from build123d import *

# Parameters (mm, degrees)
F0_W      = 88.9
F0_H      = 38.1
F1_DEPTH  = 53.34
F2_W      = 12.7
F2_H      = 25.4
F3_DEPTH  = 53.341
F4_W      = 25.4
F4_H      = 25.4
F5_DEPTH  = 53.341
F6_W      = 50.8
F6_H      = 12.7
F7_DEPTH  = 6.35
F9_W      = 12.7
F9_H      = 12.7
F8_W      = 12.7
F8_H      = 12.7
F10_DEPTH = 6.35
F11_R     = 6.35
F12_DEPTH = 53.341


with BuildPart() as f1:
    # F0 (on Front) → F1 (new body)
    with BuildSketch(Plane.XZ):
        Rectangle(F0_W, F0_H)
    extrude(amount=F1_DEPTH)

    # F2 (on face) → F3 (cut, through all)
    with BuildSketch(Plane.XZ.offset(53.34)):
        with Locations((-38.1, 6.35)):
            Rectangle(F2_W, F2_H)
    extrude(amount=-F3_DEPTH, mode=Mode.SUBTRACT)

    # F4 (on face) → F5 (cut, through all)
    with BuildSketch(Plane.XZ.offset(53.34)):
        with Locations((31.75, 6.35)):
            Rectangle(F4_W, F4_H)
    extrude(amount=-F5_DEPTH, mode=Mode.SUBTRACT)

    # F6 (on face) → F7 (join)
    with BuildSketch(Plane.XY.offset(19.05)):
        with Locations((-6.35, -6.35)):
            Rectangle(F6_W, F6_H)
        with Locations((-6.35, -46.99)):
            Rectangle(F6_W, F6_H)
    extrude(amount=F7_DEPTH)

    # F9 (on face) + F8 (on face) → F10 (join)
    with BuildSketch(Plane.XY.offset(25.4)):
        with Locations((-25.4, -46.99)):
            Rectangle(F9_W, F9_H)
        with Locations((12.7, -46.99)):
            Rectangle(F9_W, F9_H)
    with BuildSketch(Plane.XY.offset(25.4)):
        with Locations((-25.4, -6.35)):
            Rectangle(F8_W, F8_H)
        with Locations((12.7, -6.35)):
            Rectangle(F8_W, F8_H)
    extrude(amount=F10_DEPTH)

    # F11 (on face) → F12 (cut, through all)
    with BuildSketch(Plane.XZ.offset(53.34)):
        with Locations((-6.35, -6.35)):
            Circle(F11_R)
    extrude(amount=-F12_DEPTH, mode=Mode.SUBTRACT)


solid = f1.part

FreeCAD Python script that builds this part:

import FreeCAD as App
import Part
import Sketcher
Q = App.Units.Quantity


def add_polygon(sketch, points):
    """Adds a closed chain of lines whose ends are joined by coincident constraints."""
    first, n = sketch.GeometryCount, len(points)
    for a, b in zip(points, points[1:] + points[:1]):
        sketch.addGeometry(Part.LineSegment(App.Vector(*a, 0), App.Vector(*b, 0)), False)
    for i in range(n):
        sketch.addConstraint(Sketcher.Constraint("Coincident", first + i, 2, first + (i + 1) % n, 1))

doc = App.newDocument("Part")
body = doc.addObject("PartDesign::Body", "Body")

# Sketch on XZ plane
sketch1 = body.newObject("Sketcher::SketchObject", "Sketch")
sketch1.AttachmentSupport = (doc.getObject("XZ_Plane"), [""])
sketch1.MapMode = "FlatFace"
add_polygon(sketch1, [(-44, 19), (-44, -19), (44, -19), (44, 19)])  # lines 0-3
sketch1.addConstraint(Sketcher.Constraint("Vertical", 0))
sketch1.addConstraint(Sketcher.Constraint("Horizontal", 1))
sketch1.addConstraint(Sketcher.Constraint("Vertical", 2))
sketch1.addConstraint(Sketcher.Constraint("Horizontal", 3))
sketch1.addConstraint(Sketcher.Constraint("Symmetric", 0, 2, 2, 2, -1, 1))
sketch1.addConstraint(Sketcher.Constraint("DistanceX", 1, 1, 1, 2, Q("3.5 in")))
sketch1.addConstraint(Sketcher.Constraint("DistanceY", 0, 2, 0, 1, Q("1.5 in")))
pad1 = body.newObject("PartDesign::Pad", "Pad")
pad1.Profile = sketch1
pad1.Length = Q("2.1 in")

# Sketch on XZ plane
sketch2 = body.newObject("Sketcher::SketchObject", "Sketch001")
sketch2.AttachmentSupport = (doc.getObject("XZ_Plane"), [""])
sketch2.MapMode = "FlatFace"
sketch2.AttachmentOffset = App.Placement(App.Vector(0, 0, 2.1 * 25.4), App.Rotation())
add_polygon(sketch2, [(-44, 19), (-44, -6), (-32, -6), (-32, 19)])  # lines 0-3
sketch2.addConstraint(Sketcher.Constraint("Vertical", 0))
sketch2.addConstraint(Sketcher.Constraint("Horizontal", 1))
sketch2.addConstraint(Sketcher.Constraint("Vertical", 2))
sketch2.addConstraint(Sketcher.Constraint("Horizontal", 3))
sketch2.addConstraint(Sketcher.Constraint("DistanceY", 0, 2, 0, 1, Q("1 in")))
sketch2.addConstraint(Sketcher.Constraint("DistanceX", 1, 1, 1, 2, Q("0.5 in")))
sketch2.addConstraint(Sketcher.Constraint("DistanceX", 0, 2, -1, 1, Q("1.75 in")))
sketch2.addConstraint(Sketcher.Constraint("DistanceY", 0, 2, -1, 1, Q("0.25 in")))
pocket1 = body.newObject("PartDesign::Pocket", "Pocket")
pocket1.Profile = sketch2
pocket1.Type = "ThroughAll"

# Sketch on XZ plane
sketch3 = body.newObject("Sketcher::SketchObject", "Sketch002")
sketch3.AttachmentSupport = (doc.getObject("XZ_Plane"), [""])
sketch3.MapMode = "FlatFace"
sketch3.AttachmentOffset = App.Placement(App.Vector(0, 0, 2.1 * 25.4), App.Rotation())
add_polygon(sketch3, [(19, 19), (19, -6), (44, -6), (44, 19)])  # lines 0-3
sketch3.addConstraint(Sketcher.Constraint("Vertical", 0))
sketch3.addConstraint(Sketcher.Constraint("Horizontal", 1))
sketch3.addConstraint(Sketcher.Constraint("Vertical", 2))
sketch3.addConstraint(Sketcher.Constraint("Horizontal", 3))
sketch3.addConstraint(Sketcher.Constraint("Equal", 3, 0))
sketch3.addConstraint(Sketcher.Constraint("DistanceX", 1, 1, 1, 2, Q("1 in")))
sketch3.addConstraint(Sketcher.Constraint("DistanceX", -1, 1, 0, 2, Q("0.75 in")))
sketch3.addConstraint(Sketcher.Constraint("DistanceY", 0, 2, -1, 1, Q("0.25 in")))
pocket2 = body.newObject("PartDesign::Pocket", "Pocket001")
pocket2.Profile = sketch3
pocket2.Type = "ThroughAll"

# Sketch on XY plane
sketch4 = body.newObject("Sketcher::SketchObject", "Sketch003")
sketch4.AttachmentSupport = (doc.getObject("XY_Plane"), [""])
sketch4.MapMode = "FlatFace"
sketch4.AttachmentOffset = App.Placement(App.Vector(0, 0, 0.75 * 25.4), App.Rotation())
add_polygon(sketch4, [(-32, 0), (-32, -13), (19, -13), (19, 0)])  # lines 0-3
add_polygon(sketch4, [(-32, -41), (-32, -53), (19, -53), (19, -41)])  # lines 4-7
sketch4.addConstraint(Sketcher.Constraint("Vertical", 0))
sketch4.addConstraint(Sketcher.Constraint("Horizontal", 1))
sketch4.addConstraint(Sketcher.Constraint("Vertical", 2))
sketch4.addConstraint(Sketcher.Constraint("Horizontal", 3))
sketch4.addConstraint(Sketcher.Constraint("Vertical", 4))
sketch4.addConstraint(Sketcher.Constraint("Horizontal", 5))
sketch4.addConstraint(Sketcher.Constraint("Vertical", 6))
sketch4.addConstraint(Sketcher.Constraint("Horizontal", 7))
sketch4.addConstraint(Sketcher.Constraint("PointOnObject", 2, 2, -1))
sketch4.addConstraint(Sketcher.Constraint("Vertical", 3, 2, 4, 2))
sketch4.addConstraint(Sketcher.Constraint("Vertical", 2, 2, 5, 2))
sketch4.addConstraint(Sketcher.Constraint("Equal", 2, 4))
sketch4.addConstraint(Sketcher.Constraint("DistanceX", 1, 1, 1, 2, Q("2 in")))
sketch4.addConstraint(Sketcher.Constraint("DistanceY", 0, 2, 0, 1, Q("0.5 in")))
sketch4.addConstraint(Sketcher.Constraint("DistanceY", 4, 2, -1, 1, Q("2.1 in")))
sketch4.addConstraint(Sketcher.Constraint("DistanceX", 0, 2, -1, 1, Q("1.25 in")))
pad2 = body.newObject("PartDesign::Pad", "Pad001")
pad2.Profile = sketch4
pad2.Length = Q("0.25 in")

# Sketch on XY plane
sketch5 = body.newObject("Sketcher::SketchObject", "Sketch004")
sketch5.AttachmentSupport = (doc.getObject("XY_Plane"), [""])
sketch5.MapMode = "FlatFace"
sketch5.AttachmentOffset = App.Placement(App.Vector(0, 0, 1 * 25.4), App.Rotation())
add_polygon(sketch5, [(-32, -41), (-32, -53), (-19, -53), (-19, -41)])  # lines 0-3
add_polygon(sketch5, [(6, -41), (6, -53), (19, -53), (19, -41)])  # lines 4-7
add_polygon(sketch5, [(-32, 0), (-32, -13), (-19, -13), (-19, 0)])  # lines 8-11
add_polygon(sketch5, [(6, 0), (6, -13), (19, -13), (19, 0)])  # lines 12-15
sketch5.addConstraint(Sketcher.Constraint("Vertical", 0))
sketch5.addConstraint(Sketcher.Constraint("Horizontal", 1))
sketch5.addConstraint(Sketcher.Constraint("Vertical", 2))
sketch5.addConstraint(Sketcher.Constraint("Horizontal", 3))
sketch5.addConstraint(Sketcher.Constraint("Vertical", 4))
sketch5.addConstraint(Sketcher.Constraint("Horizontal", 5))
sketch5.addConstraint(Sketcher.Constraint("Vertical", 6))
sketch5.addConstraint(Sketcher.Constraint("Horizontal", 7))
sketch5.addConstraint(Sketcher.Constraint("Vertical", 8))
sketch5.addConstraint(Sketcher.Constraint("Horizontal", 9))
sketch5.addConstraint(Sketcher.Constraint("Vertical", 10))
sketch5.addConstraint(Sketcher.Constraint("Horizontal", 11))
sketch5.addConstraint(Sketcher.Constraint("Vertical", 12))
sketch5.addConstraint(Sketcher.Constraint("Horizontal", 13))
sketch5.addConstraint(Sketcher.Constraint("Vertical", 14))
sketch5.addConstraint(Sketcher.Constraint("Horizontal", 15))
sketch5.addConstraint(Sketcher.Constraint("Symmetric", 10, 2, 14, 2, -1, 1))
sketch5.addConstraint(Sketcher.Constraint("Symmetric", 1, 2, 5, 2, -2))
sketch5.addConstraint(Sketcher.Constraint("PointOnObject", 10, 2, -1))
sketch5.addConstraint(Sketcher.Constraint("Horizontal", 3, 2, 6, 2))
sketch5.addConstraint(Sketcher.Constraint("Horizontal", 9, 2, 12, 2))
sketch5.addConstraint(Sketcher.Constraint("Vertical", 3, 2, 8, 2))
sketch5.addConstraint(Sketcher.Constraint("Vertical", 2, 2, 9, 2))
sketch5.addConstraint(Sketcher.Constraint("Vertical", 7, 2, 12, 2))
sketch5.addConstraint(Sketcher.Constraint("Equal", 3, 5))
sketch5.addConstraint(Sketcher.Constraint("Equal", 15, 0))
sketch5.addConstraint(Sketcher.Constraint("Equal", 6, 8))
sketch5.addConstraint(Sketcher.Constraint("DistanceX", 1, 1, 1, 2, Q("0.5 in")))
sketch5.addConstraint(Sketcher.Constraint("DistanceX", 1, 2, 4, 2, Q("1 in")))
sketch5.addConstraint(Sketcher.Constraint("DistanceY", 0, 2, -1, 1, Q("2.1 in")))
pad3 = body.newObject("PartDesign::Pad", "Pad002")
pad3.Profile = sketch5
pad3.Length = Q("0.25 in")

# Sketch on XZ plane
sketch6 = body.newObject("Sketcher::SketchObject", "Sketch005")
sketch6.AttachmentSupport = (doc.getObject("XZ_Plane"), [""])
sketch6.MapMode = "FlatFace"
sketch6.AttachmentOffset = App.Placement(App.Vector(0, 0, 2.1 * 25.4), App.Rotation())
sketch6.addGeometry(Part.Circle(App.Vector(-6, -6, 0), App.Vector(0, 0, 1), 6), False)
sketch6.addConstraint(Sketcher.Constraint("Diameter", 0, Q("0.5 in")))
sketch6.addConstraint(Sketcher.Constraint("DistanceX", 0, 3, -1, 1, Q("0.25 in")))
sketch6.addConstraint(Sketcher.Constraint("DistanceY", 0, 3, -1, 1, Q("0.25 in")))
pocket3 = body.newObject("PartDesign::Pocket", "Pocket002")
pocket3.Profile = sketch6
pocket3.Type = "ThroughAll"

doc.recompute()
